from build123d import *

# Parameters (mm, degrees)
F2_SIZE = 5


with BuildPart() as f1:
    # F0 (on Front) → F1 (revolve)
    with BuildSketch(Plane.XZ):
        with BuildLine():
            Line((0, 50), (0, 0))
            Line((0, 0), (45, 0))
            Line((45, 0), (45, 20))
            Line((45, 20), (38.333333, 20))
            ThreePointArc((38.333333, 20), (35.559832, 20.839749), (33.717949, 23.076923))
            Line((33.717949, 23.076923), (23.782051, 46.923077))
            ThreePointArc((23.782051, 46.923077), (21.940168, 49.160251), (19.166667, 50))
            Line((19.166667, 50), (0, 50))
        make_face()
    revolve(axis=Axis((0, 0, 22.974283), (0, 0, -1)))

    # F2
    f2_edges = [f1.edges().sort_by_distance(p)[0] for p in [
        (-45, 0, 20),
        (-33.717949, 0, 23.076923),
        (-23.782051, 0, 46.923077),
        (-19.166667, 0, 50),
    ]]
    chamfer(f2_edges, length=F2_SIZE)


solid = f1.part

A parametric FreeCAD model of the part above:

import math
import FreeCAD as App
import Part
import Sketcher


def edges_at(feature, points):
    """Names of the edges that pass closest to the given points."""
    edges = feature.Shape.Edges
    near = lambda p: min(range(len(edges)), key=lambda i: edges[i].distToShape(Part.Vertex(*p))[0])
    return sorted({f"Edge{near(p) + 1}" for p in points})

doc = App.newDocument("Part")
body = doc.addObject("PartDesign::Body", "Body")

# Sketch on XZ plane
sketch1 = body.newObject("Sketcher::SketchObject", "Sketch")
sketch1.AttachmentSupport = (doc.getObject("XZ_Plane"), [""])
sketch1.MapMode = "FlatFace"
sketch1.addGeometry(Part.LineSegment(App.Vector(0, 50, 0), App.Vector(0, 0, 0)), False)
sketch1.addGeometry(Part.LineSegment(App.Vector(0, 0, 0), App.Vector(45, 0, 0)), False)
sketch1.addGeometry(Part.LineSegment(App.Vector(45, 0, 0), App.Vector(45, 20, 0)), False)
sketch1.addGeometry(Part.LineSegment(App.Vector(45, 20, 0), App.Vector(38.333333, 20, 0)), False)
sketch1.addGeometry(Part.ArcOfCircle(Part.Circle(App.Vector(38.333334, 25, 0), App.Vector(0, 0, 1), 5), math.radians(-157.380132), math.radians(-90.000009)), False)
sketch1.addGeometry(Part.LineSegment(App.Vector(33.717949, 23.076923, 0), App.Vector(23.782051, 46.923077, 0)), False)
sketch1.addGeometry(Part.ArcOfCircle(Part.Circle(App.Vector(19.166666, 45, 0), App.Vector(0, 0, 1), 5), math.radians(22.619868), math.radians(89.999991)), False)
sketch1.addGeometry(Part.LineSegment(App.Vector(19.166667, 50, 0), App.Vector(0, 50, 0)), False)
sketch1.addConstraint(Sketcher.Constraint("Coincident", 0, 2, 1, 1))
sketch1.addConstraint(Sketcher.Constraint("Coincident", 1, 2, 2, 1))
sketch1.addConstraint(Sketcher.Constraint("Coincident", 2, 2, 3, 1))
sketch1.addConstraint(Sketcher.Constraint("Tangent", 3, 2, 4, 2))
sketch1.addConstraint(Sketcher.Constraint("Tangent", 4, 1, 5, 1))
sketch1.addConstraint(Sketcher.Constraint("Tangent", 5, 2, 6, 1))
sketch1.addConstraint(Sketcher.Constraint("Tangent", 6, 2, 7, 1))
sketch1.addConstraint(Sketcher.Constraint("Coincident", 7, 2, 0, 1))
sketch1.addConstraint(Sketcher.Constraint("Vertical", 0))
sketch1.addConstraint(Sketcher.Constraint("Horizontal", 1))
sketch1.addConstraint(Sketcher.Constraint("Vertical", 2))
sketch1.addConstraint(Sketcher.Constraint("Horizontal", 3))
sketch1.addConstraint(Sketcher.Constraint("Horizontal", 7))
sketch1.addConstraint(Sketcher.Constraint("Coincident", 0, 2, -1, 1))
sketch1.addConstraint(Sketcher.Constraint("Equal", 4, 6))
sketch1.addConstraint(Sketcher.Constraint("Radius", 4, 5.0))
sketch1.addConstraint(Sketcher.Constraint("DistanceX", 1, 1, 1, 2, 45.0))
sketch1.addConstraint(Sketcher.Constraint("DistanceY", 0, 2, 0, 1, 50.0))
sketch1.addConstraint(Sketcher.Constraint("DistanceY", 2, 1, 2, 2, 20.0))
sketch1.addConstraint(Sketcher.Constraint("DistanceX", 5, 2, 4, 1, 9.935898))
sketch1.addConstraint(Sketcher.Constraint("DistanceX", 3, 2, 3, 1, 6.666667))
revolution = body.newObject("PartDesign::Revolution", "Revolution")
revolution.Profile = sketch1
revolution.ReferenceAxis = (sketch1, ["V_Axis"])
revolution.Angle = 360
doc.recompute()

chamfer = body.newObject("PartDesign::Chamfer", "Chamfer")
chamfer.Base = (revolution, edges_at(revolution, [
    (-45, 0, 20),
    (-33.718, 0, 23.077),
    (-23.782, 0, 46.923),
    (-19.167, 0, 50),
]))
chamfer.Size = 5

doc.recompute()
